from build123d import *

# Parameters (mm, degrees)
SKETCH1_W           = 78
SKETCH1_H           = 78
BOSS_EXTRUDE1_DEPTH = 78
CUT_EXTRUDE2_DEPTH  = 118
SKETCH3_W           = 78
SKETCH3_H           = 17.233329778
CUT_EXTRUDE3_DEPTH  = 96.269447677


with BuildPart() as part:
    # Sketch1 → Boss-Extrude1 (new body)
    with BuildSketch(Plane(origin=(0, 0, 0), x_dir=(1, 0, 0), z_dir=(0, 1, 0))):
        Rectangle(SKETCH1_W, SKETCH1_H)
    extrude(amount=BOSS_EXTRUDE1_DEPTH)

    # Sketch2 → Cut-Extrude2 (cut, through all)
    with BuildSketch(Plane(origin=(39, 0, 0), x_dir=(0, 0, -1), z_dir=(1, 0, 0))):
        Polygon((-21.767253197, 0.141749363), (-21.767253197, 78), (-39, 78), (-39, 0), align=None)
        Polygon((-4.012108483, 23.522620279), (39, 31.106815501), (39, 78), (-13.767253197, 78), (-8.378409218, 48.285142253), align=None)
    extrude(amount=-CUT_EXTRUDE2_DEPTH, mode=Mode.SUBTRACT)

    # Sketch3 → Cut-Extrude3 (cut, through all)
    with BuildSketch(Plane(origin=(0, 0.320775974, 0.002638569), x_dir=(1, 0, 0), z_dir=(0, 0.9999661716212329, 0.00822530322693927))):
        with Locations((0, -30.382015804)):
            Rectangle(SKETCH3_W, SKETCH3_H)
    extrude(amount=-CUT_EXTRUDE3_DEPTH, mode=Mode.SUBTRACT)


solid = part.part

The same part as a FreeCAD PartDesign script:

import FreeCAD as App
import Part
import Sketcher

V = App.Vector
Q = App.Units.Quantity


def add_polygon(sketch, points):
    """Adds a closed chain of lines whose ends are joined by coincident constraints."""
    first, n = sketch.GeometryCount, len(points)
    for a, b in zip(points, points[1:] + points[:1]):
        sketch.addGeometry(Part.LineSegment(App.Vector(*a, 0), App.Vector(*b, 0)), False)
    for i in range(n):
        sketch.addConstraint(Sketcher.Constraint("Coincident", first + i, 2, first + (i + 1) % n, 1))

doc = App.newDocument("Part")
body = doc.addObject("PartDesign::Body", "Body")

sketch1 = doc.addObject("Sketcher::SketchObject", "Sketch")
body.addObject(sketch1)
sketch1.AttachmentSupport = (doc.XZ_Plane, [""])
sketch1.MapMode = "FlatFace"
add_polygon(sketch1, [(-39, -39), (-39, 39), (39, 39), (39, -39)])
sketch1.addConstraint(Sketcher.Constraint("Vertical", 0))
sketch1.addConstraint(Sketcher.Constraint("Horizontal", 1))
sketch1.addConstraint(Sketcher.Constraint("Vertical", 2))
sketch1.addConstraint(Sketcher.Constraint("Horizontal", 3))
sketch1.addConstraint(Sketcher.Constraint("Symmetric", 0, 2, 2, 2, -1, 1))
sketch1.addConstraint(Sketcher.Constraint("Equal", 3, 0))
sketch1.addConstraint(Sketcher.Constraint("DistanceX", 1, 1, 1, 2, 78.0))
pad1 = doc.addObject("PartDesign::Pad", "Pad")
body.addObject(pad1)
pad1.Profile = sketch1
pad1.Length = 78
pad1.Reversed = True

sketch2 = doc.addObject("Sketcher::SketchObject", "Sketch001")
body.addObject(sketch2)
sketch2.AttachmentSupport = (doc.YZ_Plane, [""])
sketch2.MapMode = "FlatFace"
sketch2.AttachmentOffset = App.Placement(V(0, 0, 39), App.Rotation())
add_polygon(sketch2, [(0, 22), (78, 22), (78, 39), (0, 39)])
add_polygon(sketch2, [(24, 4), (31, -39), (78, -39), (78, 14), (48, 8)])
sketch2.addConstraint(Sketcher.Constraint("Horizontal", 0))
sketch2.addConstraint(Sketcher.Constraint("Vertical", 1))
sketch2.addConstraint(Sketcher.Constraint("Horizontal", 2))
sketch2.addConstraint(Sketcher.Constraint("Horizontal", 5))
sketch2.addConstraint(Sketcher.Constraint("Vertical", 6))
sketch2.addConstraint(Sketcher.Constraint("Symmetric", 1, 2, 5, 2, -1))
sketch2.addConstraint(Sketcher.Constraint("PointOnObject", 2, 2, -2))
sketch2.addConstraint(Sketcher.Constraint("Perpendicular", 4, 8))
sketch2.addConstraint(Sketcher.Constraint("DistanceX", 2, 2, 2, 1, 78.0))
sketch2.addConstraint(Sketcher.Constraint("Angle", 4, Q("-80 deg")))
sketch2.addConstraint(Sketcher.Constraint("DistanceY", -1, 1, 1, 2, 39.0))
sketch2.addConstraint(Sketcher.Constraint("DistanceY", 6, 2, 0, 2, 8.0))
sketch2.addConstraint(Sketcher.Constraint("DistanceX", 0, 1, 0, 2, 77.858251))
sketch2.addConstraint(Sketcher.Constraint("DistanceY", 8, 2, 7, 2, 4.366301))
sketch2.addConstraint(Sketcher.Constraint("Distance", 3, 17.23333))
sketch2.addConstraint(Sketcher.Constraint("Distance", 4, 43.67564))
sketch2.addConstraint(Sketcher.Constraint("DistanceX", 5, 1, 5, 2, 46.893184))
pocket1 = doc.addObject("PartDesign::Pocket", "Pocket")
body.addObject(pocket1)
pocket1.Profile = sketch2
pocket1.Type = "ThroughAll"

sketch3 = doc.addObject("Sketcher::SketchObject", "Sketch002")
body.addObject(sketch3)
sketch3.Placement = App.Placement(V(0, 0.320776, 0.002639), App.Rotation(V(1, 0, 0), V(0, 0.008225303, -0.999966172), V(0, 0.999966172, 0.008225303), "ZXY"))
add_polygon(sketch3, [(-39, -22), (-39, -39), (39, -39), (39, -22)])
sketch3.addConstraint(Sketcher.Constraint("Vertical", 0))
sketch3.addConstraint(Sketcher.Constraint("Horizontal", 1))
sketch3.addConstraint(Sketcher.Constraint("Vertical", 2))
sketch3.addConstraint(Sketcher.Constraint("Horizontal", 3))
sketch3.addConstraint(Sketcher.Constraint("DistanceX", 1, 1, 1, 2, 78.0))
sketch3.addConstraint(Sketcher.Constraint("DistanceX", 0, 2, -1, 1, 39.0))
sketch3.addConstraint(Sketcher.Constraint("DistanceY", 0, 2, 0, 1, 17.23333))
sketch3.addConstraint(Sketcher.Constraint("DistanceY", 0, 2, -1, 1, 38.998681))
pocket2 = doc.addObject("PartDesign::Pocket", "Pocket001")
body.addObject(pocket2)
pocket2.Profile = sketch3
pocket2.Type = "ThroughAll"

doc.recompute()
